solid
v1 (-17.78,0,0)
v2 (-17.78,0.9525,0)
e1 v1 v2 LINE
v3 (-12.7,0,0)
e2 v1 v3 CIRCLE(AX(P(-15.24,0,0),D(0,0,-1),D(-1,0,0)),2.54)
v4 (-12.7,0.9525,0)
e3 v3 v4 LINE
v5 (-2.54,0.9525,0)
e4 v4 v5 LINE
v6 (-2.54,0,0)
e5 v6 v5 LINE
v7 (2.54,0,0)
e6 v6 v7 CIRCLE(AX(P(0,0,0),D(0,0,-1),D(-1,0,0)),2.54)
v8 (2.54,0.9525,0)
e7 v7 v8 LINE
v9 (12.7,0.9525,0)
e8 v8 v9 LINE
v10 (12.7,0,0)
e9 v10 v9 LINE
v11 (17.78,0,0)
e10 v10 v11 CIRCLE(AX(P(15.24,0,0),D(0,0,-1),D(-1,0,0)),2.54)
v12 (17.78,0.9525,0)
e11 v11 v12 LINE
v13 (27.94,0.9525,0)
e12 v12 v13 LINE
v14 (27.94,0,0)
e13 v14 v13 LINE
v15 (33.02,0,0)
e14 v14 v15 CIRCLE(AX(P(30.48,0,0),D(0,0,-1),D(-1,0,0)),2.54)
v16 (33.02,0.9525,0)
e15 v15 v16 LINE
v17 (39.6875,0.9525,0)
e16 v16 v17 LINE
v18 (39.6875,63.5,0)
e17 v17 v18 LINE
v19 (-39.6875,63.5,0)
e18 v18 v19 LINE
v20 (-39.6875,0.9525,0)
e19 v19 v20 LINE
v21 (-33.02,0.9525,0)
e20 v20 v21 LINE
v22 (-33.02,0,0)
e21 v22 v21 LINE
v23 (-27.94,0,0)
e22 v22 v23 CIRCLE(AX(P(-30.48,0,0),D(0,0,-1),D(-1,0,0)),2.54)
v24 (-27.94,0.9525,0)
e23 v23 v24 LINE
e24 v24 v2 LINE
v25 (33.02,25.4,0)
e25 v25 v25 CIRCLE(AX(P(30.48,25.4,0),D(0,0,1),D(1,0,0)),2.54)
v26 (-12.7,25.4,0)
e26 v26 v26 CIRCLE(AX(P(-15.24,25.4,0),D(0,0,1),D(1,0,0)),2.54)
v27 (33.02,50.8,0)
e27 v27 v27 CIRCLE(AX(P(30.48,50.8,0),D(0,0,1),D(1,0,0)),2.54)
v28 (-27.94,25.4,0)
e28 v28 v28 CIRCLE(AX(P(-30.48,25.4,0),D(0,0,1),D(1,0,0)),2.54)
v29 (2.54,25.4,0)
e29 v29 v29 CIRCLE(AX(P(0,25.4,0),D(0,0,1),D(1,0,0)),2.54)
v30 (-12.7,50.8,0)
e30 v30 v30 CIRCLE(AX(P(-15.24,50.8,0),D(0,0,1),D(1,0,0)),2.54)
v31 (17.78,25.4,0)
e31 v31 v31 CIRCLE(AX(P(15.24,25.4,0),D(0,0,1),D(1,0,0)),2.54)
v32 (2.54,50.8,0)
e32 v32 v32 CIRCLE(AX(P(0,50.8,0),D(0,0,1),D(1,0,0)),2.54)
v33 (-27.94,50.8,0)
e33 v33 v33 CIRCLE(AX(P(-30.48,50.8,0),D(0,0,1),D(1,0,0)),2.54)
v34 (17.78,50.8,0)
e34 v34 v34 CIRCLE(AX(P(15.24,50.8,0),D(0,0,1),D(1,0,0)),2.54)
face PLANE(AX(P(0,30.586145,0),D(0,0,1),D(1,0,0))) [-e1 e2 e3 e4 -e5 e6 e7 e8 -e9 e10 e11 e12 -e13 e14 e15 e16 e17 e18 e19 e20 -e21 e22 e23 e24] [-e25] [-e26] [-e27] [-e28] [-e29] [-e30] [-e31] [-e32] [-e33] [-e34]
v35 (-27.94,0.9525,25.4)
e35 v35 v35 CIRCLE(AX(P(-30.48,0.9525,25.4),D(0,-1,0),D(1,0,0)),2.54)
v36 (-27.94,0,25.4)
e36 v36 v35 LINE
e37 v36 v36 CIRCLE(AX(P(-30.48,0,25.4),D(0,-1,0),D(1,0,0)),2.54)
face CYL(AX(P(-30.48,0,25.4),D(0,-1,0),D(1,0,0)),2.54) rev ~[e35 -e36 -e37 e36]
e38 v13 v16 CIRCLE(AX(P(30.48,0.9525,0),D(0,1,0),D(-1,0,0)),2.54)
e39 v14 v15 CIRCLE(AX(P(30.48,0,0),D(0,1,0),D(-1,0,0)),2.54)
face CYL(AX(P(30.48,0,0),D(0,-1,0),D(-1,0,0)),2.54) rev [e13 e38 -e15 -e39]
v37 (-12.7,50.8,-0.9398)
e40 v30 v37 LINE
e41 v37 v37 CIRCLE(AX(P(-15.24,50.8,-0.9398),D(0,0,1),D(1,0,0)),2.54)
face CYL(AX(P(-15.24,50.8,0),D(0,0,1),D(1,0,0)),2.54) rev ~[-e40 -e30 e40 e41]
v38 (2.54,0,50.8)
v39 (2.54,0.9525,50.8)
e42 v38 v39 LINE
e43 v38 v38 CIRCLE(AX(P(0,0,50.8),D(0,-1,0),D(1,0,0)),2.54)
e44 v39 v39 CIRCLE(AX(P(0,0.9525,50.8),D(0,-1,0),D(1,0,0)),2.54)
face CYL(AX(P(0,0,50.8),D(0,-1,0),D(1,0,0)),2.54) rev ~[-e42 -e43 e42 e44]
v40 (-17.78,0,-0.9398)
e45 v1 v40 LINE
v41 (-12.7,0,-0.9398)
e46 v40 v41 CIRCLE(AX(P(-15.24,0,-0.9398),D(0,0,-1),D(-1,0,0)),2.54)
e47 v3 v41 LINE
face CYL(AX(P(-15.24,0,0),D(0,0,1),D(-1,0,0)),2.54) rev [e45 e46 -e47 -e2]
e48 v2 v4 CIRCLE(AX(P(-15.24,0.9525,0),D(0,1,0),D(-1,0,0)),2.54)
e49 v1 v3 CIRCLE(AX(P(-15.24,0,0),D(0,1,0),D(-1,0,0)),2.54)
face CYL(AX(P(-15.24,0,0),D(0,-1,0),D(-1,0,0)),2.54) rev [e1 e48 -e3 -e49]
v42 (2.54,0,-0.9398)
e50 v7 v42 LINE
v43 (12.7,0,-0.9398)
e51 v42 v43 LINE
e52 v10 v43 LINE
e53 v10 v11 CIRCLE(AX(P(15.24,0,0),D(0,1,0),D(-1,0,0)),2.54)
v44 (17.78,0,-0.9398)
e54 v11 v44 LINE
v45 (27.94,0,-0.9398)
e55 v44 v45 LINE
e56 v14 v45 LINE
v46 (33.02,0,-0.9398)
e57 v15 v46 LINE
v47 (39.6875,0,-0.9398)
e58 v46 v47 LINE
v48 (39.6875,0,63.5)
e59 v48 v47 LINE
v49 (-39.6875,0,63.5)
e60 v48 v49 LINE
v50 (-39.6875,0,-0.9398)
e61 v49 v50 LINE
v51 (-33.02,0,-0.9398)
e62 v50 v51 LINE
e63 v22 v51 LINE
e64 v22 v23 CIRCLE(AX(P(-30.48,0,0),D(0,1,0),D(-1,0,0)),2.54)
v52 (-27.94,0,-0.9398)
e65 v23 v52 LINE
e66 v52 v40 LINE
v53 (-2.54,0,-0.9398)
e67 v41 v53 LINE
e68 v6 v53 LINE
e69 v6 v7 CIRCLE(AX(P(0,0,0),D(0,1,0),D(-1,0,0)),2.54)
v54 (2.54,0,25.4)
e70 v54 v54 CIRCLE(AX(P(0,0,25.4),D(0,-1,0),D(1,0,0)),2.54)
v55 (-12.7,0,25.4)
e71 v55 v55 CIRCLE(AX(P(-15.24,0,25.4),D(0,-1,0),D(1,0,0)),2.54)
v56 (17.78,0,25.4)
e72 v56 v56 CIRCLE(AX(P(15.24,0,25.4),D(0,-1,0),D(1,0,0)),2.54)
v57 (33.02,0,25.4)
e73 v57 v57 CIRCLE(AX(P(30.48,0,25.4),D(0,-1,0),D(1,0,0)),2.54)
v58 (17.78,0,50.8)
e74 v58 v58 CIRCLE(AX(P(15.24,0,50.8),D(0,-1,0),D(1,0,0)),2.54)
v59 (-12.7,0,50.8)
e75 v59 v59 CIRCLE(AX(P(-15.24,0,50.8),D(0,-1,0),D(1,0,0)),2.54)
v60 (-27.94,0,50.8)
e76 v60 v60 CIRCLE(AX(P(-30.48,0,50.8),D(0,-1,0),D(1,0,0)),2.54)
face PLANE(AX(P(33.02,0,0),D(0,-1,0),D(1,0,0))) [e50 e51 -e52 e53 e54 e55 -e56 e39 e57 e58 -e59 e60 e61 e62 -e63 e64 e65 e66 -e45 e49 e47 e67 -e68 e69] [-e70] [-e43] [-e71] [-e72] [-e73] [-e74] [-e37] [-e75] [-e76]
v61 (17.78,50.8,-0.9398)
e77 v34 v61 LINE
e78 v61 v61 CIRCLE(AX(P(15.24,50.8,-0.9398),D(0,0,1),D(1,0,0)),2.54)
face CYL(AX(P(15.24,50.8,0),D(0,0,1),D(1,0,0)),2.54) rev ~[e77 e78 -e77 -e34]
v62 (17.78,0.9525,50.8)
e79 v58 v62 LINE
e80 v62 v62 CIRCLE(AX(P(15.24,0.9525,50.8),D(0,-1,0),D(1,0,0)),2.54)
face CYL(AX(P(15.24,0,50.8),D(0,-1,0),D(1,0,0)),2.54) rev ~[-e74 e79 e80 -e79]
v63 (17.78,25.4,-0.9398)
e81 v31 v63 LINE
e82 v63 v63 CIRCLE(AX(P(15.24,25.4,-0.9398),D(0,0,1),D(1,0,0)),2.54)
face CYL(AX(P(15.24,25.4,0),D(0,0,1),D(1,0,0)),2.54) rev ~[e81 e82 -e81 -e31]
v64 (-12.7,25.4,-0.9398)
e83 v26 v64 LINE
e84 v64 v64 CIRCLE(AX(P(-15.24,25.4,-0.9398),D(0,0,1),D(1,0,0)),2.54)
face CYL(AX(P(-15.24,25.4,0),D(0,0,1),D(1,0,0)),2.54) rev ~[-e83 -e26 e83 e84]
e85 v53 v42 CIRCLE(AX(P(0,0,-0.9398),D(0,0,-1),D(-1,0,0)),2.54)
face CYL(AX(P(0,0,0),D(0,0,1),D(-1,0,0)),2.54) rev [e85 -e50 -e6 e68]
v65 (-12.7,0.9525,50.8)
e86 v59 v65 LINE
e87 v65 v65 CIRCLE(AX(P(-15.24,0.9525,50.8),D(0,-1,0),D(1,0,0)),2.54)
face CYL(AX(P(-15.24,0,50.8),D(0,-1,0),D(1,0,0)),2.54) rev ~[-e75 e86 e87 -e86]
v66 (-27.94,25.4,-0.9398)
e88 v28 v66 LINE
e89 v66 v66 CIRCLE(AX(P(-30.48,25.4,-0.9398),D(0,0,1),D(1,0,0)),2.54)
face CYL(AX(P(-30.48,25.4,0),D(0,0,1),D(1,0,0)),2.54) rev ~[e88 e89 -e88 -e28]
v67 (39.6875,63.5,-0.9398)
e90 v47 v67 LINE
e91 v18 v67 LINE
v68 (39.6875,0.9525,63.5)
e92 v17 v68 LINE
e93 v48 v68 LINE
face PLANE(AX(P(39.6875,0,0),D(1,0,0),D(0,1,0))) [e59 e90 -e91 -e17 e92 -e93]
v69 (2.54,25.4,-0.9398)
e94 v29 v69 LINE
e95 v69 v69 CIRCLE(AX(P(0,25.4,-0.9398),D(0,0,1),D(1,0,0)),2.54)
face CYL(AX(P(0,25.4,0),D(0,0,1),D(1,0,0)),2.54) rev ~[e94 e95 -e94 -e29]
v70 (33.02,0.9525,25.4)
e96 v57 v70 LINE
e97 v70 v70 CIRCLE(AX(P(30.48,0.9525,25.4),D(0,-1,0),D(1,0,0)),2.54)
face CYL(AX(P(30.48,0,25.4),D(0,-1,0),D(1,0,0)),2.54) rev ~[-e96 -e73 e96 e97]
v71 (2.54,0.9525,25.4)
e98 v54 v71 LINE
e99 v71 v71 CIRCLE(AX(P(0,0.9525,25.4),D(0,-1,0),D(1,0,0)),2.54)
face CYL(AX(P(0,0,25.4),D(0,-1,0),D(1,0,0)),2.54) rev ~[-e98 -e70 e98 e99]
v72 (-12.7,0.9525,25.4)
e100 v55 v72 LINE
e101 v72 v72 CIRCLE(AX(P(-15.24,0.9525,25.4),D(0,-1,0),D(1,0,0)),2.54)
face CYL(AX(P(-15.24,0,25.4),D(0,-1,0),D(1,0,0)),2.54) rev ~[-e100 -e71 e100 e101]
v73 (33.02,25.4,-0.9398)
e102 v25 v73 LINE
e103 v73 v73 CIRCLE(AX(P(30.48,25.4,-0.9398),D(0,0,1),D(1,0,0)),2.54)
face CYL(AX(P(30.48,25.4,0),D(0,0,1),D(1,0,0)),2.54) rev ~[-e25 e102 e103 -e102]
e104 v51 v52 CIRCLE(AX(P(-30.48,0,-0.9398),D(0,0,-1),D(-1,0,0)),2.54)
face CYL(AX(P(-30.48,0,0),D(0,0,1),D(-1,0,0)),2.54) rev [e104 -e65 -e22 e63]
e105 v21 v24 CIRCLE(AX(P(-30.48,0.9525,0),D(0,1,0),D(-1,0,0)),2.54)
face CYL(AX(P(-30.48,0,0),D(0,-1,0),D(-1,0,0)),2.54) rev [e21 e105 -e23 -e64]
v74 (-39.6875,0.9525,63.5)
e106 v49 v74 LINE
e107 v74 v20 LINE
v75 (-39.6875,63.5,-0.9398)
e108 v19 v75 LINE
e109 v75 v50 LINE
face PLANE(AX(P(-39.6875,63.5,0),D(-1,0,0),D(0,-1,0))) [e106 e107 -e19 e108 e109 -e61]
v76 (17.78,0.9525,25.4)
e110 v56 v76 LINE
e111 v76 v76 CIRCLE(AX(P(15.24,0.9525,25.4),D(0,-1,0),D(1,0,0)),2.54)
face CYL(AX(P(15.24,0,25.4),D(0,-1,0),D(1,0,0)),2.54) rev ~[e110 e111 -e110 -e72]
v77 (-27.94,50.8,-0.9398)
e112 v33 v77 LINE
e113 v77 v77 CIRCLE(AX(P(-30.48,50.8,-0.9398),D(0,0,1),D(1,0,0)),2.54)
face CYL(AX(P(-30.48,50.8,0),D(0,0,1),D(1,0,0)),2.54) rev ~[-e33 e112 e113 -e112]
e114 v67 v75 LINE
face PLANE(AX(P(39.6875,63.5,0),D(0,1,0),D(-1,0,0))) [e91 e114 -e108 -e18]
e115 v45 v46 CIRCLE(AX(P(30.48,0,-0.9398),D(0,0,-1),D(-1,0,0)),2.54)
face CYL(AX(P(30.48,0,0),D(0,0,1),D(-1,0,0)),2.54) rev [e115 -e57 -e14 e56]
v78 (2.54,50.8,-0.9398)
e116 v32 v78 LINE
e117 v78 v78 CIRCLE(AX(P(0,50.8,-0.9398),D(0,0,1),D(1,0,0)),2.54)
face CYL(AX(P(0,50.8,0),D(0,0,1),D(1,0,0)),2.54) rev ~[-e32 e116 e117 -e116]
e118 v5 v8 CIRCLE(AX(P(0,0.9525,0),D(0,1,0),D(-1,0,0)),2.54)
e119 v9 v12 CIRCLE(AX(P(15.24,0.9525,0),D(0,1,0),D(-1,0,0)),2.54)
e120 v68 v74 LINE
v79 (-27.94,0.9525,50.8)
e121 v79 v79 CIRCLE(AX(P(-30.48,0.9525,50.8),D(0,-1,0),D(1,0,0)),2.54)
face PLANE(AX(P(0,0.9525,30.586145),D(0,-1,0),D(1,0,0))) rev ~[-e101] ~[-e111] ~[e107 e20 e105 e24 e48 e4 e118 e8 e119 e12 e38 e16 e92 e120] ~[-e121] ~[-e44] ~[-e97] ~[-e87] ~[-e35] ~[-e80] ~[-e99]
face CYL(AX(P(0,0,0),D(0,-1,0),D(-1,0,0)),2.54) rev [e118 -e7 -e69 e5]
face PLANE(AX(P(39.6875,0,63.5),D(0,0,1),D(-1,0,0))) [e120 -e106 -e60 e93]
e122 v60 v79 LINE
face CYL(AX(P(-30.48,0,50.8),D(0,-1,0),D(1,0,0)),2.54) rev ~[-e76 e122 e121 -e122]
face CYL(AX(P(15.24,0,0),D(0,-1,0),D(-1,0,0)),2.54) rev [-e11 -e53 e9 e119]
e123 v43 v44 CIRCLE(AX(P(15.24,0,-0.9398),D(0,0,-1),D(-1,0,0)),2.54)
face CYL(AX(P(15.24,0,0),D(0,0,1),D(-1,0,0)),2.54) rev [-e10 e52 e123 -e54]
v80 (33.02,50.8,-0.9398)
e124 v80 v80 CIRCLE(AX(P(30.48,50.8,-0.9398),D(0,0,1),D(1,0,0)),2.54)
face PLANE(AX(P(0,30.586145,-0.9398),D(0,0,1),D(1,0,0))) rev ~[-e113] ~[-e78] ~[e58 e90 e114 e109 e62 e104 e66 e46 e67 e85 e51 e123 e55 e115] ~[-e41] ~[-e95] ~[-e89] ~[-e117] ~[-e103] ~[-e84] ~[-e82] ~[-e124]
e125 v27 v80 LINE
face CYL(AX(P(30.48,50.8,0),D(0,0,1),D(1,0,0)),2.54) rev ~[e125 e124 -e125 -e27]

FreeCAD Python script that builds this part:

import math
import FreeCAD as App
import Part
import Sketcher
Q = App.Units.Quantity

doc = App.newDocument("Part")
body = doc.addObject("PartDesign::Body", "Body")

# Sketch on XZ plane
sketch1 = body.newObject("Sketcher::SketchObject", "Sketch")
sketch1.AttachmentSupport = (doc.getObject("XZ_Plane"), [""])
sketch1.MapMode = "FlatFace"
sketch1.addGeometry([
    Part.LineSegment(App.Vector(39.7, 0, 0), App.Vector(39.7, 63.5, 0)),  # 0
    Part.LineSegment(App.Vector(39.7, 63.5, 0), App.Vector(-39.7, 63.5, 0)),  # 1
    Part.LineSegment(App.Vector(-39.7, 63.5, 0), App.Vector(-39.7, 0, 0)),  # 2
    Part.LineSegment(App.Vector(-39.7, 0, 0), App.Vector(-33, 0, 0)),  # 3
    Part.ArcOfCircle(Part.Circle(App.Vector(-30.5, 0, 0), App.Vector(0, 0, 1), 2.5), math.radians(0), math.radians(180)),  # 4
    Part.LineSegment(App.Vector(-27.9, 0, 0), App.Vector(-17.8, 0, 0)),  # 5
    Part.ArcOfCircle(Part.Circle(App.Vector(-15.2, 0, 0), App.Vector(0, 0, 1), 2.5), math.radians(0), math.radians(180)),  # 6
    Part.LineSegment(App.Vector(-12.7, 0, 0), App.Vector(-2.5, 0, 0)),  # 7
    Part.ArcOfCircle(Part.Circle(App.Vector(0, 0, 0), App.Vector(0, 0, 1), 2.5), math.radians(0), math.radians(180)),  # 8
    Part.LineSegment(App.Vector(2.5, 0, 0), App.Vector(12.7, 0, 0)),  # 9
    Part.ArcOfCircle(Part.Circle(App.Vector(15.2, 0, 0), App.Vector(0, 0, 1), 2.5), math.radians(0), math.radians(180)),  # 10
    Part.LineSegment(App.Vector(17.8, 0, 0), App.Vector(27.9, 0, 0)),  # 11
    Part.ArcOfCircle(Part.Circle(App.Vector(30.5, 0, 0), App.Vector(0, 0, 1), 2.5), math.radians(0), math.radians(180)),  # 12
    Part.LineSegment(App.Vector(33, 0, 0), App.Vector(39.7, 0, 0)),  # 13
    Part.Circle(App.Vector(-30.5, 25.4, 0), App.Vector(0, 0, 1), 2.5),  # 14
    Part.Circle(App.Vector(-15.2, 25.4, 0), App.Vector(0, 0, 1), 2.5),  # 15
    Part.Circle(App.Vector(0, 25.4, 0), App.Vector(0, 0, 1), 2.5),  # 16
    Part.Circle(App.Vector(15.2, 25.4, 0), App.Vector(0, 0, 1), 2.5),  # 17
    Part.Circle(App.Vector(30.5, 25.4, 0), App.Vector(0, 0, 1), 2.5),  # 18
    Part.Circle(App.Vector(-30.5, 50.8, 0), App.Vector(0, 0, 1), 2.5),  # 19
    Part.Circle(App.Vector(-15.2, 50.8, 0), App.Vector(0, 0, 1), 2.5),  # 20
    Part.Circle(App.Vector(0, 50.8, 0), App.Vector(0, 0, 1), 2.5),  # 21
    Part.Circle(App.Vector(15.2, 50.8, 0), App.Vector(0, 0, 1), 2.5),  # 22
], False)
sketch1.addConstraint([
    Sketcher.Constraint("Coincident", 0, 2, 1, 1),
    Sketcher.Constraint("Coincident", 1, 2, 2, 1),
    Sketcher.Constraint("Coincident", 2, 2, 3, 1),
    Sketcher.Constraint("Coincident", 3, 2, 4, 2),
    Sketcher.Constraint("Coincident", 4, 1, 5, 1),
    Sketcher.Constraint("Coincident", 5, 2, 6, 2),
    Sketcher.Constraint("Coincident", 6, 1, 7, 1),
    Sketcher.Constraint("Coincident", 7, 2, 8, 2),
    Sketcher.Constraint("Coincident", 8, 1, 9, 1),
    Sketcher.Constraint("Coincident", 9, 2, 10, 2),
    Sketcher.Constraint("Coincident", 10, 1, 11, 1),
    Sketcher.Constraint("Coincident", 11, 2, 12, 2),
    Sketcher.Constraint("Coincident", 12, 1, 13, 1),
    Sketcher.Constraint("Coincident", 13, 2, 0, 1),
    Sketcher.Constraint("Vertical", 0),
    Sketcher.Constraint("Horizontal", 1),
    Sketcher.Constraint("Vertical", 2),
    Sketcher.Constraint("Horizontal", 3),
    Sketcher.Constraint("Horizontal", 5),
    Sketcher.Constraint("Horizontal", 7),
    Sketcher.Constraint("Horizontal", 9),
    Sketcher.Constraint("Horizontal", 11),
    Sketcher.Constraint("Horizontal", 13),
    Sketcher.Constraint("Coincident", 8, 3, -1, 1),
    Sketcher.Constraint("Equal", 4, 6),
    Sketcher.Constraint("Equal", 6, 8),
    Sketcher.Constraint("Equal", 8, 10),
    Sketcher.Constraint("Equal", 10, 12),
    Sketcher.Constraint("Equal", 12, 14),
    Sketcher.Constraint("Equal", 14, 15),
    Sketcher.Constraint("Equal", 15, 16),
    Sketcher.Constraint("Equal", 16, 17),
    Sketcher.Constraint("Equal", 17, 18),
    Sketcher.Constraint("Equal", 18, 19),
    Sketcher.Constraint("Equal", 19, 20),
    Sketcher.Constraint("Equal", 20, 21),
    Sketcher.Constraint("Equal", 21, 22),
    Sketcher.Constraint("Symmetric", 6, 3, 10, 3, -1, 1),
    Sketcher.Constraint("Symmetric", 4, 3, 12, 3, -1, 1),
    Sketcher.Constraint("Symmetric", 2, 2, 13, 2, -1, 1),
    Sketcher.Constraint("Symmetric", 15, 3, 17, 3, -2),
    Sketcher.Constraint("Symmetric", 14, 3, 18, 3, -2),
    Sketcher.Constraint("Symmetric", 20, 3, 22, 3, -2),
    Sketcher.Constraint("PointOnObject", 4, 3, -1),
    Sketcher.Constraint("PointOnObject", 6, 3, -1),
    Sketcher.Constraint("PointOnObject", 16, 3, -2),
    Sketcher.Constraint("PointOnObject", 21, 3, -2),
    Sketcher.Constraint("PointOnObject", 2, 2, -1),
    Sketcher.Constraint("PointOnObject", 4, 1, -1),
    Sketcher.Constraint("PointOnObject", 6, 1, -1),
    Sketcher.Constraint("PointOnObject", 8, 1, -1),
    Sketcher.Constraint("PointOnObject", 10, 1, -1),
    Sketcher.Constraint("Horizontal", 14, 3, 15, 3),
    Sketcher.Constraint("Horizontal", 15, 3, 16, 3),
    Sketcher.Constraint("Horizontal", 19, 3, 20, 3),
    Sketcher.Constraint("Horizontal", 20, 3, 21, 3),
    Sketcher.Constraint("Vertical", 4, 3, 14, 3),
    Sketcher.Constraint("Vertical", 6, 3, 15, 3),
    Sketcher.Constraint("Vertical", 14, 3, 19, 3),
    Sketcher.Constraint("Vertical", 15, 3, 20, 3),
    Sketcher.Constraint("Equal", 5, 7),
    Sketcher.Constraint("Diameter", 14, Q("0.2 in")),
    Sketcher.Constraint("DistanceX", 5, 1, 5, 2, Q("0.4 in")),
    Sketcher.Constraint("DistanceY", 0, 1, 0, 2, Q("2.5 in")),
    Sketcher.Constraint("DistanceY", -1, 1, 14, 3, Q("1 in")),
    Sketcher.Constraint("DistanceY", -1, 1, 19, 3, Q("2 in")),
    Sketcher.Constraint("DistanceX", 1, 2, 1, 1, Q("3.125 in")),
])
pad1 = body.newObject("PartDesign::Pad", "Pad")
pad1.Profile = sketch1
pad1.Length = Q("0.0375 in")
pad1.Reversed = True

# Sketch on XY plane
sketch2 = body.newObject("Sketcher::SketchObject", "Sketch001")
sketch2.AttachmentSupport = (doc.getObject("XY_Plane"), [""])
sketch2.MapMode = "FlatFace"
sketch2.addGeometry([
    Part.LineSegment(App.Vector(39.7, 0, 0), App.Vector(39.7, 63.5, 0)),  # 0
    Part.LineSegment(App.Vector(39.7, 63.5, 0), App.Vector(-39.7, 63.5, 0)),  # 1
    Part.LineSegment(App.Vector(-39.7, 63.5, 0), App.Vector(-39.7, 0, 0)),  # 2
    Part.LineSegment(App.Vector(-39.7, 0, 0), App.Vector(-33, 0, 0)),  # 3
    Part.ArcOfCircle(Part.Circle(App.Vector(-30.5, 0, 0), App.Vector(0, 0, 1), 2.5), math.radians(0), math.radians(180)),  # 4
    Part.LineSegment(App.Vector(-27.9, 0, 0), App.Vector(-17.8, 0, 0)),  # 5
    Part.ArcOfCircle(Part.Circle(App.Vector(-15.2, 0, 0), App.Vector(0, 0, 1), 2.5), math.radians(0), math.radians(180)),  # 6
    Part.LineSegment(App.Vector(-12.7, 0, 0), App.Vector(-2.5, 0, 0)),  # 7
    Part.ArcOfCircle(Part.Circle(App.Vector(0, 0, 0), App.Vector(0, 0, 1), 2.5), math.radians(0), math.radians(180)),  # 8
    Part.LineSegment(App.Vector(2.5, 0, 0), App.Vector(12.7, 0, 0)),  # 9
    Part.ArcOfCircle(Part.Circle(App.Vector(15.2, 0, 0), App.Vector(0, 0, 1), 2.5), math.radians(0), math.radians(180)),  # 10
    Part.LineSegment(App.Vector(17.8, 0, 0), App.Vector(27.9, 0, 0)),  # 11
    Part.ArcOfCircle(Part.Circle(App.Vector(30.5, 0, 0), App.Vector(0, 0, 1), 2.5), math.radians(0), math.radians(180)),  # 12
    Part.LineSegment(App.Vector(33, 0, 0), App.Vector(39.7, 0, 0)),  # 13
    Part.Circle(App.Vector(-30.5, 25.4, 0), App.Vector(0, 0, 1), 2.5),  # 14
    Part.Circle(App.Vector(-15.2, 25.4, 0), App.Vector(0, 0, 1), 2.5),  # 15
    Part.Circle(App.Vector(0, 25.4, 0), App.Vector(0, 0, 1), 2.5),  # 16
    Part.Circle(App.Vector(15.2, 25.4, 0), App.Vector(0, 0, 1), 2.5),  # 17
    Part.Circle(App.Vector(30.5, 25.4, 0), App.Vector(0, 0, 1), 2.5),  # 18
    Part.Circle(App.Vector(-30.5, 50.8, 0), App.Vector(0, 0, 1), 2.5),  # 19
    Part.Circle(App.Vector(-15.2, 50.8, 0), App.Vector(0, 0, 1), 2.5),  # 20
    Part.Circle(App.Vector(0, 50.8, 0), App.Vector(0, 0, 1), 2.5),  # 21
    Part.Circle(App.Vector(15.2, 50.8, 0), App.Vector(0, 0, 1), 2.5),  # 22
    Part.Circle(App.Vector(30.5, 50.8, 0), App.Vector(0, 0, 1), 2.5),  # 23
], False)
sketch2.addConstraint([
    Sketcher.Constraint("Coincident", 0, 2, 1, 1),
    Sketcher.Constraint("Coincident", 1, 2, 2, 1),
    Sketcher.Constraint("Coincident", 2, 2, 3, 1),
    Sketcher.Constraint("Coincident", 3, 2, 4, 2),
    Sketcher.Constraint("Coincident", 4, 1, 5, 1),
    Sketcher.Constraint("Coincident", 5, 2, 6, 2),
    Sketcher.Constraint("Coincident", 6, 1, 7, 1),
    Sketcher.Constraint("Coincident", 7, 2, 8, 2),
    Sketcher.Constraint("Coincident", 8, 1, 9, 1),
    Sketcher.Constraint("Coincident", 9, 2, 10, 2),
    Sketcher.Constraint("Coincident", 10, 1, 11, 1),
    Sketcher.Constraint("Coincident", 11, 2, 12, 2),
    Sketcher.Constraint("Coincident", 12, 1, 13, 1),
    Sketcher.Constraint("Coincident", 13, 2, 0, 1),
    Sketcher.Constraint("Vertical", 0),
    Sketcher.Constraint("Horizontal", 1),
    Sketcher.Constraint("Vertical", 2),
    Sketcher.Constraint("Horizontal", 3),
    Sketcher.Constraint("Horizontal", 5),
    Sketcher.Constraint("Horizontal", 7),
    Sketcher.Constraint("Horizontal", 9),
    Sketcher.Constraint("Horizontal", 11),
    Sketcher.Constraint("Horizontal", 13),
    Sketcher.Constraint("Coincident", 8, 3, -1, 1),
    Sketcher.Constraint("Equal", 4, 6),
    Sketcher.Constraint("Equal", 6, 8),
    Sketcher.Constraint("Equal", 8, 10),
    Sketcher.Constraint("Equal", 10, 12),
    Sketcher.Constraint("Equal", 12, 14),
    Sketcher.Constraint("Equal", 14, 15),
    Sketcher.Constraint("Equal", 15, 16),
    Sketcher.Constraint("Equal", 16, 17),
    Sketcher.Constraint("Equal", 17, 18),
    Sketcher.Constraint("Equal", 18, 19),
    Sketcher.Constraint("Equal", 19, 20),
    Sketcher.Constraint("Equal", 20, 21),
    Sketcher.Constraint("Equal", 21, 22),
    Sketcher.Constraint("Equal", 22, 23),
    Sketcher.Constraint("Symmetric", 6, 3, 10, 3, -1, 1),
    Sketcher.Constraint("Symmetric", 4, 3, 12, 3, -1, 1),
    Sketcher.Constraint("Symmetric", 2, 2, 13, 2, -1, 1),
    Sketcher.Constraint("Symmetric", 15, 3, 17, 3, -2),
    Sketcher.Constraint("Symmetric", 14, 3, 18, 3, -2),
    Sketcher.Constraint("Symmetric", 20, 3, 22, 3, -2),
    Sketcher.Constraint("Symmetric", 19, 3, 23, 3, -2),
    Sketcher.Constraint("PointOnObject", 4, 3, -1),
    Sketcher.Constraint("PointOnObject", 6, 3, -1),
    Sketcher.Constraint("PointOnObject", 16, 3, -2),
    Sketcher.Constraint("PointOnObject", 21, 3, -2),
    Sketcher.Constraint("PointOnObject", 2, 2, -1),
    Sketcher.Constraint("PointOnObject", 4, 1, -1),
    Sketcher.Constraint("PointOnObject", 6, 1, -1),
    Sketcher.Constraint("PointOnObject", 8, 1, -1),
    Sketcher.Constraint("PointOnObject", 10, 1, -1),
    Sketcher.Constraint("Horizontal", 14, 3, 15, 3),
    Sketcher.Constraint("Horizontal", 15, 3, 16, 3),
    Sketcher.Constraint("Horizontal", 19, 3, 20, 3),
    Sketcher.Constraint("Horizontal", 20, 3, 21, 3),
    Sketcher.Constraint("Vertical", 4, 3, 14, 3),
    Sketcher.Constraint("Vertical", 6, 3, 15, 3),
    Sketcher.Constraint("Vertical", 14, 3, 19, 3),
    Sketcher.Constraint("Vertical", 15, 3, 20, 3),
    Sketcher.Constraint("Equal", 5, 7),
    Sketcher.Constraint("Diameter", 14, Q("0.2 in")),
    Sketcher.Constraint("DistanceX", 5, 1, 5, 2, Q("0.4 in")),
    Sketcher.Constraint("DistanceY", 0, 1, 0, 2, Q("2.5 in")),
    Sketcher.Constraint("DistanceY", -1, 1, 14, 3, Q("1 in")),
    Sketcher.Constraint("DistanceY", -1, 1, 19, 3, Q("2 in")),
    Sketcher.Constraint("DistanceX", 1, 2, 1, 1, Q("3.125 in")),
])
pad2 = body.newObject("PartDesign::Pad", "Pad001")
pad2.Profile = sketch2
pad2.Length = Q("0.037 in")
pad2.Reversed = True

doc.recompute()
